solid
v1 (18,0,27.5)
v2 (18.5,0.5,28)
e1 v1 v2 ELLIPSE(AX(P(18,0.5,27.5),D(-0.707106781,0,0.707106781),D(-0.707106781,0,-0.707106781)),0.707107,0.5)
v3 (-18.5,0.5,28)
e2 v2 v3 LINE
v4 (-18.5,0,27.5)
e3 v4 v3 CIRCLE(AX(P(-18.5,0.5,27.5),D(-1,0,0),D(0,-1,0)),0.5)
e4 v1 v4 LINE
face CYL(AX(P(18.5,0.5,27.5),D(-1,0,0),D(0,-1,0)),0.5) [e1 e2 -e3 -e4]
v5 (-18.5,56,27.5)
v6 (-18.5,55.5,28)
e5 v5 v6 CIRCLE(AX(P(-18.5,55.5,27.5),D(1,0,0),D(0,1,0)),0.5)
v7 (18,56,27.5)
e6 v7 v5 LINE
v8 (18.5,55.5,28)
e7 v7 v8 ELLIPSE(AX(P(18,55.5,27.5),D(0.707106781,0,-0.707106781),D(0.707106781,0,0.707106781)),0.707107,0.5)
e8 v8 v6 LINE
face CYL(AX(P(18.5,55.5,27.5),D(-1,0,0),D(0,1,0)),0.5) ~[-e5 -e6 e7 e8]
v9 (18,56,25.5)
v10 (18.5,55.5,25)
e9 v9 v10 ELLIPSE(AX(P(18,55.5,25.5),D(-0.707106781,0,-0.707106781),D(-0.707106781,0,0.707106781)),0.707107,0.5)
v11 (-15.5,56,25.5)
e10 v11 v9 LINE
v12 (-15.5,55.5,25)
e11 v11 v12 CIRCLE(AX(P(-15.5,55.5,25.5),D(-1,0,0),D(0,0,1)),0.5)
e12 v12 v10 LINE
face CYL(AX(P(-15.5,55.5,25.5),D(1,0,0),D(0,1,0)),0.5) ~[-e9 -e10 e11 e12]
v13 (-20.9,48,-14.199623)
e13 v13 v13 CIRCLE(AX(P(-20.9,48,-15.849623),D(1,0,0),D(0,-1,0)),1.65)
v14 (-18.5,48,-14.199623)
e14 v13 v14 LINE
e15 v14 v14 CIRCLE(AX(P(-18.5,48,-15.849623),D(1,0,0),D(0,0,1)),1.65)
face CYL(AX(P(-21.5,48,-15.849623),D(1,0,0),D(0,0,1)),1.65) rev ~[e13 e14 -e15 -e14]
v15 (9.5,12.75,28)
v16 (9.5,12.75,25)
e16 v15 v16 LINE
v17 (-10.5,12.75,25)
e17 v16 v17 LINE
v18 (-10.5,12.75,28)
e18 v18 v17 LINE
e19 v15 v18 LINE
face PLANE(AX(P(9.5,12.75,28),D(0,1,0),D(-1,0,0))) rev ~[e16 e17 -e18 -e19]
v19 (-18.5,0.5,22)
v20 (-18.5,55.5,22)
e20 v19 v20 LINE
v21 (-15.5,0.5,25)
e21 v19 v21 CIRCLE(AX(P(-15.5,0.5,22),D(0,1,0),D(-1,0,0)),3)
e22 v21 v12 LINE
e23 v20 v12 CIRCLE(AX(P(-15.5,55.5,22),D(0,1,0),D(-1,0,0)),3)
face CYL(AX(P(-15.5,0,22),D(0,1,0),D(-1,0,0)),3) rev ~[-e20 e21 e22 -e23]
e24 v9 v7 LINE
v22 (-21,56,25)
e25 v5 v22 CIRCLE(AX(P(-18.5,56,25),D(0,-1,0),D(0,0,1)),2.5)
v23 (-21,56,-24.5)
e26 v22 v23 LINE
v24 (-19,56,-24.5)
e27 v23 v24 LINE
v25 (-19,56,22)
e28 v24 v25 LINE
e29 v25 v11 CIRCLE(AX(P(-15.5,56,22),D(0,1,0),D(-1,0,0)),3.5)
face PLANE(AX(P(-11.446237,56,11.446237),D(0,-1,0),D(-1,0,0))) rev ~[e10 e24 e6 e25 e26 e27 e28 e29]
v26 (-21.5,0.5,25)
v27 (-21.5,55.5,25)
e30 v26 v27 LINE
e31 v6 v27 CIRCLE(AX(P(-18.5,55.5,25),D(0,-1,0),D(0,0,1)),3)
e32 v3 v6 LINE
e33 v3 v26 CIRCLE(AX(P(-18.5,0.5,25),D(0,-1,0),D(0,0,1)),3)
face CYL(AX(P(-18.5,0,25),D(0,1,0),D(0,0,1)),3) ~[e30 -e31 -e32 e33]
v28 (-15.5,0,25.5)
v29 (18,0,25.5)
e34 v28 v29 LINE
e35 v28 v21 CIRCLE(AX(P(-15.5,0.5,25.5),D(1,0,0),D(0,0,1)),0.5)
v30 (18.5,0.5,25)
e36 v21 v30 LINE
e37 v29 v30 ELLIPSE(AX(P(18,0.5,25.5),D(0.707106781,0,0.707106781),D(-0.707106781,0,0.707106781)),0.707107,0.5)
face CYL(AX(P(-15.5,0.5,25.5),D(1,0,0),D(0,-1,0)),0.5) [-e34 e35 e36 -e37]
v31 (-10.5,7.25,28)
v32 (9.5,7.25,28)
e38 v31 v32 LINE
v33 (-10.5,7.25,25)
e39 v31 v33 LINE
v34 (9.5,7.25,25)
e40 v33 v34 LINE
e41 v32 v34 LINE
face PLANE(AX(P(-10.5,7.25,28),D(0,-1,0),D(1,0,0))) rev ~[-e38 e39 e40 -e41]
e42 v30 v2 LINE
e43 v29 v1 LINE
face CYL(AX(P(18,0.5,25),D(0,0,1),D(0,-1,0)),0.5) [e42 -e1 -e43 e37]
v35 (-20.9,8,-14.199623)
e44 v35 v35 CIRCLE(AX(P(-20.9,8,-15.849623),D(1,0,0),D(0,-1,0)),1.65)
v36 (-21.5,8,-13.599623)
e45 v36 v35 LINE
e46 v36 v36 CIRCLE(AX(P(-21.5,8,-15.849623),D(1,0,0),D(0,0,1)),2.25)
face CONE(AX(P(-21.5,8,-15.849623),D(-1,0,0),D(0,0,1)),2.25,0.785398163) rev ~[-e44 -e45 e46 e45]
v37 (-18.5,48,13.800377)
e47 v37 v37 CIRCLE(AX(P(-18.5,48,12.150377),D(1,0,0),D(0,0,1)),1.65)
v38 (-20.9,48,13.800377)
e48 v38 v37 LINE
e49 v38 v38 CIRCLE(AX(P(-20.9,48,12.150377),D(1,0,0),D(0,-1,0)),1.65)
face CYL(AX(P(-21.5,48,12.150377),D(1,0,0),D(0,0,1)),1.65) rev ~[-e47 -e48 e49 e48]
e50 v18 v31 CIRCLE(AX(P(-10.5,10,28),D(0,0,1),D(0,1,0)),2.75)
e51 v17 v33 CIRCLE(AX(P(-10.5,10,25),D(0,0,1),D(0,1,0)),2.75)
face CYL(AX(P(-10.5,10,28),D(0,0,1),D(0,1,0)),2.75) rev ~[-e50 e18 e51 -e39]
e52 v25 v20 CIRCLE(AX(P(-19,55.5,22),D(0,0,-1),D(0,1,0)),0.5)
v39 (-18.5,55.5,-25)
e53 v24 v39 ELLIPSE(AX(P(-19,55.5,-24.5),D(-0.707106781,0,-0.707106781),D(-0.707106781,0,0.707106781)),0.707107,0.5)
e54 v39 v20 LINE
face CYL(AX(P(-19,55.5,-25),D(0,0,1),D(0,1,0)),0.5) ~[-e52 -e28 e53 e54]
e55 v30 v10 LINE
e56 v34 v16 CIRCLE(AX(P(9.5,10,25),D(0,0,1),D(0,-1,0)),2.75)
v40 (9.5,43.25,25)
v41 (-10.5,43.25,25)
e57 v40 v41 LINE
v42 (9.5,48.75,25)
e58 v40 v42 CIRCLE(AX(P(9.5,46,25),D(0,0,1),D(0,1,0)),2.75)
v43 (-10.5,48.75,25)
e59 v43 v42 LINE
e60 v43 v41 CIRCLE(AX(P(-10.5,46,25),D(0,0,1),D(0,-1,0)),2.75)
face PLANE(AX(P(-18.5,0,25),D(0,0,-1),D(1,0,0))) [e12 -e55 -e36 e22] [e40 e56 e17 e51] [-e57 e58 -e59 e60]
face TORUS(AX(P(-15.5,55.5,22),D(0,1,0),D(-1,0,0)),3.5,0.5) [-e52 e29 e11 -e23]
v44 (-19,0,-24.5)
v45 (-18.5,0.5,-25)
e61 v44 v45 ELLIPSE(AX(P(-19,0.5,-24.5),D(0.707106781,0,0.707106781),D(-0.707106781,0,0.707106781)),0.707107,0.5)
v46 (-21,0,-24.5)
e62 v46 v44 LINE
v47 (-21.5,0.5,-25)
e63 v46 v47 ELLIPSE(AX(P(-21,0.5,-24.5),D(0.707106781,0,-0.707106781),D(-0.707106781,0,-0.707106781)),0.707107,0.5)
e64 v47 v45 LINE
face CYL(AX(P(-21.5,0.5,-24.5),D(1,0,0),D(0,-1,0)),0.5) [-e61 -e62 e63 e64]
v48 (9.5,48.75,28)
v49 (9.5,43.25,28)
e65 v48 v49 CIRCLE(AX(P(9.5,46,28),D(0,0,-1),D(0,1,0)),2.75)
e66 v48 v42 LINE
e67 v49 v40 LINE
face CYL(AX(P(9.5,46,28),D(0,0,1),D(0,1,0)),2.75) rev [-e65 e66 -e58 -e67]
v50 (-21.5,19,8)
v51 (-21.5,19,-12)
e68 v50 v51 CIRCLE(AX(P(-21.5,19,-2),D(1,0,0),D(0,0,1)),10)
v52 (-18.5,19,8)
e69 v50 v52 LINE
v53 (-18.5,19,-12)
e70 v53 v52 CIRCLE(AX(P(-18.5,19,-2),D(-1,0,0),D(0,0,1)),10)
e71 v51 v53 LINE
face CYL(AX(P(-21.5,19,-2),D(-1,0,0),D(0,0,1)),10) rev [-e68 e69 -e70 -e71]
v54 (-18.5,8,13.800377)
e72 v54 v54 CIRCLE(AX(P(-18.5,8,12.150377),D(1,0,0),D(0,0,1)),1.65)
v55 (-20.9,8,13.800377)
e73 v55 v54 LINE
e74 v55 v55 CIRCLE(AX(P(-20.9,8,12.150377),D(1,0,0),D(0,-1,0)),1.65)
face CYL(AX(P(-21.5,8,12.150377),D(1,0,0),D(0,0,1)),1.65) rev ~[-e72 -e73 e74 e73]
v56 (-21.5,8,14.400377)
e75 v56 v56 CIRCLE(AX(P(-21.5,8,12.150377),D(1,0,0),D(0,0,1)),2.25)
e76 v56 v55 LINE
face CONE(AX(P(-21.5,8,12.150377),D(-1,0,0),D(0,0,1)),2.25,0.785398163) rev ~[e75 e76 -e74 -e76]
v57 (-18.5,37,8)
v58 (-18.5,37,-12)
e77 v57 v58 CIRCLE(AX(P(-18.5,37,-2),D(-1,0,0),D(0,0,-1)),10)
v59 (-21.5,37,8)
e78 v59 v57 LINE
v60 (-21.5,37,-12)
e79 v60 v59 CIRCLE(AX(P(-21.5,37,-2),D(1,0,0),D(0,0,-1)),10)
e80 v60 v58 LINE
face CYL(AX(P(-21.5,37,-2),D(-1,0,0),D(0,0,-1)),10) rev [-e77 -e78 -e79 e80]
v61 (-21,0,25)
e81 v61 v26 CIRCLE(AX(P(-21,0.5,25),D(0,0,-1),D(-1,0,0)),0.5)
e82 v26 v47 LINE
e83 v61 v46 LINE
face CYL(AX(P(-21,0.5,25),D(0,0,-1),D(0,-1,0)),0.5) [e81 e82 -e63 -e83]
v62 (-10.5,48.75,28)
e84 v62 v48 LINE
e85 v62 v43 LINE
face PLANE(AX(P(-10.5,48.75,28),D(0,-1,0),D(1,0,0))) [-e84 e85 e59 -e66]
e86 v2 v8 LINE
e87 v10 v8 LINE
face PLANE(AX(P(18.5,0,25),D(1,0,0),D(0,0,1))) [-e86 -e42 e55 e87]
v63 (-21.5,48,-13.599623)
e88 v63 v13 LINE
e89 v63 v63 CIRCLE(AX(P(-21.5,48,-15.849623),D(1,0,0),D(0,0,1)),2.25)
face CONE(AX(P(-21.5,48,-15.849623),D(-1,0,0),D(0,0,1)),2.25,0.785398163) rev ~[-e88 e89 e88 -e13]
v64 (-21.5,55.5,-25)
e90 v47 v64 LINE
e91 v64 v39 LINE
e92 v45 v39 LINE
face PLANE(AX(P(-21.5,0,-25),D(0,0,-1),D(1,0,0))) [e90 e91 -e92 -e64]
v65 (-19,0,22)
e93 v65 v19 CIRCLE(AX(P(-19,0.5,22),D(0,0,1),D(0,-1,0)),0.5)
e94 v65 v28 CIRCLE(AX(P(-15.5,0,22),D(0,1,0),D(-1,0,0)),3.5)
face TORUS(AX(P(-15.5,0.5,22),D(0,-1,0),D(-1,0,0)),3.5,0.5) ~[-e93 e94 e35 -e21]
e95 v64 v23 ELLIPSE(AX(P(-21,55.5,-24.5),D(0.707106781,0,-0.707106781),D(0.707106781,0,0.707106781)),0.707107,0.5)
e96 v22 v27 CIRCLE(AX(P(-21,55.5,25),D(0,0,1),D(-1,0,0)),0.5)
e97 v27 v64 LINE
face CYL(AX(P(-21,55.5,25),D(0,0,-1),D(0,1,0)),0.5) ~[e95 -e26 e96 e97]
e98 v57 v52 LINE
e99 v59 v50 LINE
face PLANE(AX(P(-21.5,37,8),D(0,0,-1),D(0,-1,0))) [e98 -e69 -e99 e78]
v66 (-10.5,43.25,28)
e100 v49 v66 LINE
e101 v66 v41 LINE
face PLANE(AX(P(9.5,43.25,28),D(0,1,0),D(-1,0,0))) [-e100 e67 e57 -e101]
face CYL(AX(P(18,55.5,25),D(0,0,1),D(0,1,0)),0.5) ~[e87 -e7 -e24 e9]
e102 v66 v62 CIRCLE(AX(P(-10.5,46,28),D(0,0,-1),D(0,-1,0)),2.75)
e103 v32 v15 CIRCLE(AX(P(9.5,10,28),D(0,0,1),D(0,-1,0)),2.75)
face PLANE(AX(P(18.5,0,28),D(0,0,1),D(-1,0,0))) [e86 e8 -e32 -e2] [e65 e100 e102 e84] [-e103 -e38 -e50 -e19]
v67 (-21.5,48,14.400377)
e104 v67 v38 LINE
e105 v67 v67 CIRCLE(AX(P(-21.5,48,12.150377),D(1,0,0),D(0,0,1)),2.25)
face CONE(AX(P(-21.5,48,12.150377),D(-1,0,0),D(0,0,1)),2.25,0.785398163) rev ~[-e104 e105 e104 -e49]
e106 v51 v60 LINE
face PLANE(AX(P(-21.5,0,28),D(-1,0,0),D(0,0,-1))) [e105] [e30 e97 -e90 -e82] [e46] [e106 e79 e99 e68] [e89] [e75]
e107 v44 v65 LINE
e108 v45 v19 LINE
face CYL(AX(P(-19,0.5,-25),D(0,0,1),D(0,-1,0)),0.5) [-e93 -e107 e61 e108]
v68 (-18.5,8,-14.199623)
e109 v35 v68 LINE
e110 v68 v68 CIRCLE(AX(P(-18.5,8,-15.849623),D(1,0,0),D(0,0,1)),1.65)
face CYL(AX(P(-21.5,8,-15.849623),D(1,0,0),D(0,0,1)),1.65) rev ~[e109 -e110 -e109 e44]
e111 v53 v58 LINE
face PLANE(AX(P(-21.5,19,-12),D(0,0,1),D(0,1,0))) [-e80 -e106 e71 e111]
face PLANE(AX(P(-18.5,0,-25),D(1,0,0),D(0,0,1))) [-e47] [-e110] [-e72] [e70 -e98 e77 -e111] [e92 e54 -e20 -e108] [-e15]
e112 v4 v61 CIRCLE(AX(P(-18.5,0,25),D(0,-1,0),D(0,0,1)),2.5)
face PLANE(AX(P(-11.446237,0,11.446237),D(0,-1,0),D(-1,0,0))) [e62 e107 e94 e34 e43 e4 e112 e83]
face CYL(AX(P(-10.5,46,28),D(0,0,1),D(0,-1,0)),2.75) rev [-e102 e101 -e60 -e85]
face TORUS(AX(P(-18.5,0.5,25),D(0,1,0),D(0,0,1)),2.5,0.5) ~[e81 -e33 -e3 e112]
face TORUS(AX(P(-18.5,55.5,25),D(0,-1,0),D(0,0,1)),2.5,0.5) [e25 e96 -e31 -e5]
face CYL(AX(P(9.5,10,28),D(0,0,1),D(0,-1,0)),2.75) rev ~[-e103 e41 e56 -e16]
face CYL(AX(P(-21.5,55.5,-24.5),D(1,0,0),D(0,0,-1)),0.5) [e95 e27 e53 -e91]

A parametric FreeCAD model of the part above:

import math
import FreeCAD as App
import Part
import Sketcher
from FreeCAD import Vector
Q = App.Units.Quantity


def edges_at(feature, points):
    """Names of the edges that pass closest to the given points."""
    edges = feature.Shape.Edges
    near = lambda p: min(range(len(edges)), key=lambda i: edges[i].distToShape(Part.Vertex(*p))[0])
    return sorted({f"Edge{near(p) + 1}" for p in points})


def add_polygon(sketch, points):
    """Adds a closed chain of lines whose ends are joined by coincident constraints."""
    first, n = sketch.GeometryCount, len(points)
    for a, b in zip(points, points[1:] + points[:1]):
        sketch.addGeometry(Part.LineSegment(App.Vector(*a, 0), App.Vector(*b, 0)), False)
    for i in range(n):
        sketch.addConstraint(Sketcher.Constraint("Coincident", first + i, 2, first + (i + 1) % n, 1))

doc = App.newDocument("Part")
body = doc.addObject("PartDesign::Body", "Body")

# Sketch on XZ plane
sketch1 = body.newObject("Sketcher::SketchObject", "Sketch")
sketch1.AttachmentSupport = (doc.getObject("XZ_Plane"), [""])
sketch1.MapMode = "FlatFace"
add_polygon(sketch1, [(-18.5, 25), (-18.5, -25), (-21.5, -25), (-21.5, 28), (18.5, 28), (18.5, 25)])  # lines 0-5
sketch1.addConstraint([
    Sketcher.Constraint("Vertical", 0),
    Sketcher.Constraint("Horizontal", 1),
    Sketcher.Constraint("Vertical", 2),
    Sketcher.Constraint("Horizontal", 3),
    Sketcher.Constraint("Vertical", 4),
    Sketcher.Constraint("Horizontal", 5),
    Sketcher.Constraint("Symmetric", 0, 2, 4, 2, -1, 1),
    Sketcher.Constraint("Equal", 1, 4),
    Sketcher.Constraint("DistanceX", 1, 2, 1, 1, Q("3 mm")),
    Sketcher.Constraint("DistanceX", 3, 1, 3, 2, Q("40 mm")),
    Sketcher.Constraint("DistanceY", 0, 2, 0, 1, Q("50 mm")),
])
pad1 = body.newObject("PartDesign::Pad", "Pad")
pad1.Profile = sketch1
pad1.Length = 56
pad1.Reversed = True
doc.recompute()

fillet = body.newObject("PartDesign::Fillet", "Fillet")
fillet.Base = (pad1, edges_at(pad1, [(-21.5, 28, 28), (-18.5, 28, 25)]))
fillet.Radius = 3
doc.recompute()

fillet2 = body.newObject("PartDesign::Fillet", "Fillet001")
fillet2.Base = (fillet, edges_at(fillet, [
    (0, 0, 28),
    (18.5, 0, 26.5),
    (1.5, 0, 25),
    (-18.5, 0, -1.5),
    (-20, 0, -25),
    (-21.5, 0, 0),
    (18.5, 56, 26.5),
    (1.5, 56, 25),
    (-18.5, 56, -1.5),
    (-20, 56, -25),
    (-21.5, 56, 0),
    (0, 56, 28),
    (-20.621, 0, 27.121),
    (-20.621, 56, 27.121),
]))
fillet2.Radius = 0.5

# Sketch on XY plane
sketch2 = body.newObject("Sketcher::SketchObject", "Sketch001")
sketch2.AttachmentSupport = (doc.getObject("XY_Plane"), [""])
sketch2.MapMode = "FlatFace"
sketch2.AttachmentOffset = App.Placement(Vector(0, 0, 28), App.Rotation())
sketch2.addGeometry([
    Part.LineSegment(Vector(9.5, 48.8, 0), Vector(-10.5, 48.8, 0)),
    Part.ArcOfCircle(Part.Circle(Vector(-10.5, 46, 0), Vector(0, 0, 1), 2.8), math.radians(90), math.radians(270)),
    Part.LineSegment(Vector(-10.5, 43.2, 0), Vector(9.5, 43.2, 0)),
    Part.ArcOfCircle(Part.Circle(Vector(9.5, 46, 0), Vector(0, 0, 1), 2.8), math.radians(-90), math.radians(90)),
], False)
sketch2.addConstraint([
    Sketcher.Constraint("Tangent", 0, 2, 1, 1),
    Sketcher.Constraint("Tangent", 1, 2, 2, 1),
    Sketcher.Constraint("Tangent", 2, 2, 3, 1),
    Sketcher.Constraint("Tangent", 3, 2, 0, 1),
    Sketcher.Constraint("Horizontal", 0),
    Sketcher.Constraint("Horizontal", 2),
    Sketcher.Constraint("DistanceX", 0, 2, 0, 1, Q("20 mm")),
    Sketcher.Constraint("Radius", 1, Q("2.75 mm")),
    Sketcher.Constraint("DistanceY", -1, 1, 1, 3, Q("46 mm")),
    Sketcher.Constraint("DistanceX", 1, 3, -1, 1, Q("10.5 mm")),
])
pocket1 = body.newObject("PartDesign::Pocket", "Pocket")
pocket1.Profile = sketch2
pocket1.Type = "UpToFirst"

# Sketch on XY plane
sketch3 = body.newObject("Sketcher::SketchObject", "Sketch002")
sketch3.AttachmentSupport = (doc.getObject("XY_Plane"), [""])
sketch3.MapMode = "FlatFace"
sketch3.AttachmentOffset = App.Placement(Vector(0, 0, 28), App.Rotation())
sketch3.addGeometry([
    Part.LineSegment(Vector(-10.5, 7.2, 0), Vector(9.5, 7.2, 0)),
    Part.ArcOfCircle(Part.Circle(Vector(9.5, 10, 0), Vector(0, 0, 1), 2.8), math.radians(-90), math.radians(90)),
    Part.LineSegment(Vector(9.5, 12.8, 0), Vector(-10.5, 12.8, 0)),
    Part.ArcOfCircle(Part.Circle(Vector(-10.5, 10, 0), Vector(0, 0, 1), 2.8), math.radians(90), math.radians(270)),
], False)
sketch3.addConstraint([
    Sketcher.Constraint("Tangent", 0, 2, 1, 1),
    Sketcher.Constraint("Tangent", 1, 2, 2, 1),
    Sketcher.Constraint("Tangent", 2, 2, 3, 1),
    Sketcher.Constraint("Tangent", 3, 2, 0, 1),
    Sketcher.Constraint("Horizontal", 0),
    Sketcher.Constraint("Horizontal", 2),
    Sketcher.Constraint("DistanceX", 0, 1, 0, 2, Q("20 mm")),
    Sketcher.Constraint("Radius", 1, Q("2.75 mm")),
    Sketcher.Constraint("DistanceY", -1, 1, 1, 3, Q("10 mm")),
    Sketcher.Constraint("DistanceX", -1, 1, 1, 3, Q("9.5 mm")),
])
pocket2 = body.newObject("PartDesign::Pocket", "Pocket001")
pocket2.Profile = sketch3
pocket2.Type = "UpToFirst"

# Sketch on YZ plane
sketch4 = body.newObject("Sketcher::SketchObject", "Sketch003")
sketch4.AttachmentSupport = (doc.getObject("YZ_Plane"), [""])
sketch4.MapMode = "FlatFace"
sketch4.AttachmentOffset = App.Placement(Vector(0, 0, -21.5), App.Rotation())
sketch4.addGeometry([
    Part.LineSegment(Vector(37, -12, 0), Vector(19, -12, 0)),
    Part.ArcOfCircle(Part.Circle(Vector(19, -2, 0), Vector(0, 0, 1), 10), math.radians(90), math.radians(270)),
    Part.LineSegment(Vector(19, 8, 0), Vector(37, 8, 0)),
    Part.ArcOfCircle(Part.Circle(Vector(37, -2, 0), Vector(0, 0, 1), 10), math.radians(-90), math.radians(90)),
], False)
sketch4.addConstraint([
    Sketcher.Constraint("Tangent", 0, 2, 1, 2),
    Sketcher.Constraint("Tangent", 1, 1, 2, 1),
    Sketcher.Constraint("Tangent", 2, 2, 3, 2),
    Sketcher.Constraint("Tangent", 3, 1, 0, 1),
    Sketcher.Constraint("Horizontal", 0),
    Sketcher.Constraint("Horizontal", 2),
    Sketcher.Constraint("Radius", 1, Q("10 mm")),
    Sketcher.Constraint("DistanceX", 0, 2, 0, 1, Q("18 mm")),
    Sketcher.Constraint("DistanceX", -1, 1, 1, 3, Q("19 mm")),
    Sketcher.Constraint("DistanceY", 1, 3, -1, 1, Q("2 mm")),
])
pocket3 = body.newObject("PartDesign::Pocket", "Pocket002")
pocket3.Profile = sketch4
pocket3.Type = "UpToFirst"
pocket3.Reversed = True

# Sketch on YZ plane
sketch5 = body.newObject("Sketcher::SketchObject", "Sketch004")
sketch5.AttachmentSupport = (doc.getObject("YZ_Plane"), [""])
sketch5.MapMode = "FlatFace"
sketch5.AttachmentOffset = App.Placement(Vector(0, 0, -21.5), App.Rotation())
sketch5.addGeometry([
    Part.Circle(Vector(8, -15.8, 0), Vector(0, 0, 1), 1.6),  # 0
    Part.Circle(Vector(28, -1.8, 0), Vector(0, 0, 1), 1.6),  # 1
    Part.Circle(Vector(48, -15.8, 0), Vector(0, 0, 1), 1.6),  # 2
    Part.Circle(Vector(48, 12.2, 0), Vector(0, 0, 1), 1.6),  # 3
    Part.Circle(Vector(8, 12.2, 0), Vector(0, 0, 1), 1.6),  # 4
], False)
sketch5.addConstraint([
    Sketcher.Constraint("Equal", 0, 1),
    Sketcher.Constraint("Equal", 1, 2),
    Sketcher.Constraint("Equal", 2, 3),
    Sketcher.Constraint("Equal", 3, 4),
    Sketcher.Constraint("Horizontal", 0, 3, 2, 3),
    Sketcher.Constraint("Horizontal", 3, 3, 4, 3),
    Sketcher.Constraint("Vertical", 2, 3, 3, 3),
    Sketcher.Constraint("Vertical", 0, 3, 4, 3),
    Sketcher.Constraint("Diameter", 0, Q("3.3 mm")),
    Sketcher.Constraint("DistanceX", -1, 1, 0, 3, Q("8 mm")),
    Sketcher.Constraint("DistanceX", -1, 1, 1, 3, Q("28 mm")),
    Sketcher.Constraint("DistanceX", -1, 1, 2, 3, Q("48 mm")),
    Sketcher.Constraint("DistanceY", 0, 3, 1, 3, Q("14 mm")),
    Sketcher.Constraint("DistanceY", 1, 3, 3, 3, Q("14 mm")),
    Sketcher.Constraint("DistanceY", 0, 3, -1, 1, Q("15.849623 mm")),
])
doc.recompute()
hole = body.newObject("PartDesign::Hole", "Hole")
hole.Profile = sketch5
hole.ThreadType = "None"
hole.Diameter = 3.3
hole.DepthType = "ThroughAll"
hole.HoleCutType = "Countersink"
hole.HoleCutDiameter = 4.5
hole.HoleCutCountersinkAngle = 90
hole.Reversed = True

doc.recompute()
